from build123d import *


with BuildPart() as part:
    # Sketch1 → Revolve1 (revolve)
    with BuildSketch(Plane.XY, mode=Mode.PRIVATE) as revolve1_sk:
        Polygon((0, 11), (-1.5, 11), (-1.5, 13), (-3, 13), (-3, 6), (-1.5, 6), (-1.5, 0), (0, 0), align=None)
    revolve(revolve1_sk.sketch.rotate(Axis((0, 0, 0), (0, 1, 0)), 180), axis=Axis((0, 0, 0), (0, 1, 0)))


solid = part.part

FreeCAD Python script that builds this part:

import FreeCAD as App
import Part
import Sketcher
from FreeCAD import Vector

doc = App.newDocument("Part")
params = doc.addObject("Spreadsheet::Sheet", "Params")
for row, (alias, value) in enumerate([
    ("sketch1_height", "2 mm"),
    ("sketch1_height2", "7 mm"),
    ("sketch1_height3", "6 mm"),
    ("sketch1_width", "1.5 mm"),
    ("revolution_angle", "360 deg"),
], start=1):
    params.set(f"A{row}", alias)
    params.set(f"B{row}", "=" + value)
    params.setAlias(f"B{row}", alias)

body = doc.addObject("PartDesign::Body", "Body")

# Sketch on XY plane
sketch1 = body.newObject("Sketcher::SketchObject", "Sketch")
sketch1.AttachmentSupport = (doc.getObject("XY_Plane"), [""])
sketch1.MapMode = "FlatFace"
sketch1.addGeometry([
    Part.LineSegment(Vector(0, 11, 0), Vector(-1.5, 11, 0)),  # 0
    Part.LineSegment(Vector(-1.5, 11, 0), Vector(-1.5, 13, 0)),  # 1
    Part.LineSegment(Vector(-1.5, 13, 0), Vector(-3, 13, 0)),  # 2
    Part.LineSegment(Vector(-3, 13, 0), Vector(-3, 6, 0)),  # 3
    Part.LineSegment(Vector(-3, 6, 0), Vector(-1.5, 6, 0)),  # 4
    Part.LineSegment(Vector(-1.5, 6, 0), Vector(-1.5, 0, 0)),  # 5
    Part.LineSegment(Vector(-1.5, 0, 0), Vector(0, 0, 0)),  # 6
    Part.LineSegment(Vector(0, 0, 0), Vector(0, 11, 0)),  # 7
], False)
sketch1.addConstraint([
    Sketcher.Constraint("Coincident", 0, 2, 1, 1),
    Sketcher.Constraint("Coincident", 1, 2, 2, 1),
    Sketcher.Constraint("Coincident", 2, 2, 3, 1),
    Sketcher.Constraint("Coincident", 3, 2, 4, 1),
    Sketcher.Constraint("Coincident", 4, 2, 5, 1),
    Sketcher.Constraint("Coincident", 5, 2, 6, 1),
    Sketcher.Constraint("Coincident", 6, 2, 7, 1),
    Sketcher.Constraint("Coincident", 7, 2, 0, 1),
    Sketcher.Constraint("Horizontal", 0),
    Sketcher.Constraint("Vertical", 1),
    Sketcher.Constraint("Horizontal", 2),
    Sketcher.Constraint("Vertical", 3),
    Sketcher.Constraint("Horizontal", 4),
    Sketcher.Constraint("Vertical", 5),
    Sketcher.Constraint("Horizontal", 6),
    Sketcher.Constraint("Vertical", 7),
    Sketcher.Constraint("Coincident", 6, 2, -1, 1),
    Sketcher.Constraint("Vertical", 1, 2, 4, 2),
    Sketcher.Constraint("Equal", 0, 2),
    Sketcher.Constraint("DistanceY", 1, 1, 1, 2, 2.0),
    Sketcher.Constraint("DistanceY", 3, 2, 3, 1, 7.0),
    Sketcher.Constraint("DistanceY", 5, 2, 5, 1, 6.0),
    Sketcher.Constraint("DistanceX", 0, 2, 0, 1, 1.5),
])
sketch1.setExpression("Constraints[19]", "Params.sketch1_height")
sketch1.setExpression("Constraints[20]", "Params.sketch1_height2")
sketch1.setExpression("Constraints[21]", "Params.sketch1_height3")
sketch1.setExpression("Constraints[22]", "Params.sketch1_width")
revolution = body.newObject("PartDesign::Revolution", "Revolution")
revolution.Profile = sketch1
revolution.ReferenceAxis = (sketch1, ["V_Axis"])
revolution.setExpression("Angle", "Params.revolution_angle")

doc.recompute()
